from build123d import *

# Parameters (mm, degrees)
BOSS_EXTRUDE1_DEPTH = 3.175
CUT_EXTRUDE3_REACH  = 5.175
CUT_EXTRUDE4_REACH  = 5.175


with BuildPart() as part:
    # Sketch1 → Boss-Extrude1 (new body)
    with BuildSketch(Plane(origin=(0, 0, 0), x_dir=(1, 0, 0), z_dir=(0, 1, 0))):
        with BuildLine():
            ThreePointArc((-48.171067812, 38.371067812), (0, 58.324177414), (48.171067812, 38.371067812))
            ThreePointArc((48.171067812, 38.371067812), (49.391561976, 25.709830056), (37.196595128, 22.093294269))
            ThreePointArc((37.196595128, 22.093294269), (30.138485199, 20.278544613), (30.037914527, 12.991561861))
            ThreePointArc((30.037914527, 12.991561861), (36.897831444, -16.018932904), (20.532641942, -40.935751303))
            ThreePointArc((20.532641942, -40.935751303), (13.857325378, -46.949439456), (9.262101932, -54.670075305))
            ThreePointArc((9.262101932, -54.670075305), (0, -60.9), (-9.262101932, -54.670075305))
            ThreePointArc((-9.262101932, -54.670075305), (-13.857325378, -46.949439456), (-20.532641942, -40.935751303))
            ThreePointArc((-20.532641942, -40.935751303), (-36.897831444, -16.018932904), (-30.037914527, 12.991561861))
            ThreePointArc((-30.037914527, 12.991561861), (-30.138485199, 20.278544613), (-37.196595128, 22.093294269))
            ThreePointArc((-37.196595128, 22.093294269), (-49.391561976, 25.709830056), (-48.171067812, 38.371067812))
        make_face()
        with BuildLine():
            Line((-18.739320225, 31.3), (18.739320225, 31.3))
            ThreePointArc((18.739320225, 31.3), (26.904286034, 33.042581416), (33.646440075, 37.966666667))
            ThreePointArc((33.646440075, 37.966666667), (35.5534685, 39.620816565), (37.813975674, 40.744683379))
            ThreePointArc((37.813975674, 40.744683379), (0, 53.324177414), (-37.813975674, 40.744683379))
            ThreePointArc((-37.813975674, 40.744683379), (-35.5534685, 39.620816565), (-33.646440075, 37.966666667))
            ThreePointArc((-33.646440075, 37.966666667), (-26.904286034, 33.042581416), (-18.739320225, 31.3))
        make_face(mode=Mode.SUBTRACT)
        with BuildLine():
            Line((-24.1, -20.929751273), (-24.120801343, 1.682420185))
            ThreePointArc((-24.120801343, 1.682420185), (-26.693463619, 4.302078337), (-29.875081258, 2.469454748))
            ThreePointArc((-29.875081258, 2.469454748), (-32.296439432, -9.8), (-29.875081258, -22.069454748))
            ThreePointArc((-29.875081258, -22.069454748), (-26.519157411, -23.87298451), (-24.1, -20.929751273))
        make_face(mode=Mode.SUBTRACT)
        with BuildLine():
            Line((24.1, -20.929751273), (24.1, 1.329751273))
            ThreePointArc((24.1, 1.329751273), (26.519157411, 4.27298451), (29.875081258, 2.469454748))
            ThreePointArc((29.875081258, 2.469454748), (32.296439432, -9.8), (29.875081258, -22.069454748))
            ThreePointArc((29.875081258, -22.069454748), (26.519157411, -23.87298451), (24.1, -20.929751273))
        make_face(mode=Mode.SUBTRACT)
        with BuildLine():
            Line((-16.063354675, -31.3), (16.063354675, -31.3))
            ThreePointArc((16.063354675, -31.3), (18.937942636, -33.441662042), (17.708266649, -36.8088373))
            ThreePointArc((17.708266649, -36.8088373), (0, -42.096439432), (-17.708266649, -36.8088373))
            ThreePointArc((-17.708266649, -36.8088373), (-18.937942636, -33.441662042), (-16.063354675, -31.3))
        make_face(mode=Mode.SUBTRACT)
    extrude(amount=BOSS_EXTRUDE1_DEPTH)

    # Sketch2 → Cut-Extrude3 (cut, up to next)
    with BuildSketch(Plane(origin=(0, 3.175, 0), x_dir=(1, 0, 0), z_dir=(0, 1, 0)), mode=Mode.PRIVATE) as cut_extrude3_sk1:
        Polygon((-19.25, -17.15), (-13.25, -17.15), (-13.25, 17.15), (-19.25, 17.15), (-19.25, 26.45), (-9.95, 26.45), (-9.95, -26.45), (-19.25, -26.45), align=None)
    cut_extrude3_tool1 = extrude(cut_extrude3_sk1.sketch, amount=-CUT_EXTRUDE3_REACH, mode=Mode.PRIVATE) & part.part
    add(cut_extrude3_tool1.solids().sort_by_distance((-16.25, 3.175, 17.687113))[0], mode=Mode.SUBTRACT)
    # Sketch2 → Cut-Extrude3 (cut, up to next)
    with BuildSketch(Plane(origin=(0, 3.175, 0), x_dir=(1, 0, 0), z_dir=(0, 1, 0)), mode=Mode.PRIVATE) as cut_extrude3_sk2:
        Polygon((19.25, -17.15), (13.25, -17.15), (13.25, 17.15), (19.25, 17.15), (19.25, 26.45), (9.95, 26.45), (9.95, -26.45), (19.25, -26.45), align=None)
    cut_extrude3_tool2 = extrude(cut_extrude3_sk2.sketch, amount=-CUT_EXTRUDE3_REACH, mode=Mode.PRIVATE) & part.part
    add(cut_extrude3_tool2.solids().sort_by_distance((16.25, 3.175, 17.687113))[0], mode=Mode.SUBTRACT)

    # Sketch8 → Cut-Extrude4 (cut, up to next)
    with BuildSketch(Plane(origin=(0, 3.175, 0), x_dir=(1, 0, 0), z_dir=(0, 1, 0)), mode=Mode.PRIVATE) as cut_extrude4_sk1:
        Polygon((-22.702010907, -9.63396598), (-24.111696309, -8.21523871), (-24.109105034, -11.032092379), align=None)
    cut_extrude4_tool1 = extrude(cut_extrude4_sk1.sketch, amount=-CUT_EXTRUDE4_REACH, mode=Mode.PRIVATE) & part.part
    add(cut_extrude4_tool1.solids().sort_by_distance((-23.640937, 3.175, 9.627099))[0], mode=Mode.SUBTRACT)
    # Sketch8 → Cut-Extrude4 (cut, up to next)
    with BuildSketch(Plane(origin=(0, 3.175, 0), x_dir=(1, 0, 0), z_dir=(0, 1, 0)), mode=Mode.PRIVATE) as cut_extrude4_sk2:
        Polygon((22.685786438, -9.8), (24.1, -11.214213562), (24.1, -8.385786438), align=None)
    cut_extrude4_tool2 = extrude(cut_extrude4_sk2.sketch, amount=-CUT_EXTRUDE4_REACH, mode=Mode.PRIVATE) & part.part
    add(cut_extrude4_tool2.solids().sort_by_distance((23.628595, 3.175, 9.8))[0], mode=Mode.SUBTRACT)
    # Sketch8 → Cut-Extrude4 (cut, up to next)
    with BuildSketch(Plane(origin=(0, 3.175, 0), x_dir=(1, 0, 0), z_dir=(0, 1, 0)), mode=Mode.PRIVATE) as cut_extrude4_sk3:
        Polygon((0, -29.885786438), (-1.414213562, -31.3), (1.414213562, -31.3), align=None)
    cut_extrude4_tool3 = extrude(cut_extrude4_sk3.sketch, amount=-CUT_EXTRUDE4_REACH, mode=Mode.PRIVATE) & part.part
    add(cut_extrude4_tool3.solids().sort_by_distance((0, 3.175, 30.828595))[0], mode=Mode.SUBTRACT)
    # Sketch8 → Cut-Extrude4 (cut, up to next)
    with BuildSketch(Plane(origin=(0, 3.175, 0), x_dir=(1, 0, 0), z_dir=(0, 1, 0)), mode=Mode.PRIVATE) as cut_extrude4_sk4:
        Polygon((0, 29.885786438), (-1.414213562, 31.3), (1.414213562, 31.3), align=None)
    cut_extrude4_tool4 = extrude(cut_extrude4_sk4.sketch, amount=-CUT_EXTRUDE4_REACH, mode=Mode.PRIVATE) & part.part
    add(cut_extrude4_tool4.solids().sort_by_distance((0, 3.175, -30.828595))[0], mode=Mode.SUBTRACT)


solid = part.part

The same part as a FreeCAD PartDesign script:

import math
import FreeCAD as App
import Part
import Sketcher
from FreeCAD import Vector

doc = App.newDocument("Part")
params = doc.addObject("Spreadsheet::Sheet", "Params")
for row, (alias, value) in enumerate([
    ("sketch1_radius", "10 mm"),
    ("sketch1_radius2", "6 mm"),
    ("sketch1_radius3", "30 mm"),
    ("sketch1_radius4", "3 mm"),
    ("sketch1_radius5", "20 mm"),
    ("pad1_length", "3.175 mm"),
    ("sketch2_width", "6 mm"),
    ("sketch2_width2", "9.3 mm"),
    ("sketch2_height", "52.9 mm"),
    ("sketch3_width", "6 mm"),
    ("sketch3_width2", "9.3 mm"),
    ("sketch3_height", "34.3 mm"),
    ("sketch4_length", "2 mm"),
    ("sketch5_length", "2 mm"),
    ("sketch6_length", "2 mm"),
    ("sketch7_length", "2 mm"),
], start=1):
    params.set(f"A{row}", alias)
    params.set(f"B{row}", "=" + value)
    params.setAlias(f"B{row}", alias)

body = doc.addObject("PartDesign::Body", "Body")

sketch1 = body.newObject("Sketcher::SketchObject", "Sketch")
sketch1.AttachmentSupport = (doc.getObject("XZ_Plane"), [""])
sketch1.MapMode = "FlatFace"
sketch1.addGeometry([
    Part.ArcOfCircle(Part.Circle(Vector(0, 9.8, 0), Vector(0, 0, 1), 68.1), math.radians(-135), math.radians(-45)),
    Part.ArcOfCircle(Part.Circle(Vector(-41.1, -31.3, 0), Vector(0, 0, 1), 10), math.radians(67), math.radians(225)),
    Part.ArcOfCircle(Part.Circle(Vector(-34.9, -16.6, 0), Vector(0, 0, 1), 6), math.radians(-113), math.radians(37)),
    Part.ArcOfCircle(Part.Circle(Vector(0.2, 9.5, 0), Vector(0, 0, 1), 37.7), math.radians(123), math.radians(217)),
    Part.ArcOfCircle(Part.Circle(Vector(-37, 66, 0), Vector(0, 0, 1), 30), math.radians(-57), math.radians(-22)),
    Part.ArcOfCircle(Part.Circle(Vector(0, 50.9, 0), Vector(0, 0, 1), 10), math.radians(22), math.radians(158)),
    Part.ArcOfCircle(Part.Circle(Vector(37, 66, 0), Vector(0, 0, 1), 30), math.radians(-158), math.radians(-123)),
    Part.ArcOfCircle(Part.Circle(Vector(-0.2, 9.5, 0), Vector(0, 0, 1), 37.7), math.radians(-37), math.radians(57)),
    Part.ArcOfCircle(Part.Circle(Vector(34.9, -16.6, 0), Vector(0, 0, 1), 6), math.radians(143), math.radians(293)),
    Part.ArcOfCircle(Part.Circle(Vector(41.1, -31.3, 0), Vector(0, 0, 1), 10), math.radians(-45), math.radians(113)),
    Part.LineSegment(Vector(-16.1, 31.3, 0), Vector(16.1, 31.3, 0)),
    Part.ArcOfCircle(Part.Circle(Vector(16.1, 34.3, 0), Vector(0, 0, 1), 3), math.radians(-90), math.radians(57)),
    Part.ArcOfCircle(Part.Circle(Vector(0, 9.8, 0), Vector(0, 0, 1), 32.3), math.radians(57), math.radians(123)),
    Part.ArcOfCircle(Part.Circle(Vector(-16.1, 34.3, 0), Vector(0, 0, 1), 3), math.radians(123), math.radians(270)),
    Part.LineSegment(Vector(24.1, 20.9, 0), Vector(24.1, -1.3, 0)),
    Part.ArcOfCircle(Part.Circle(Vector(27.1, -1.3, 0), Vector(0, 0, 1), 3), math.radians(180), math.radians(338)),
    Part.ArcOfCircle(Part.Circle(Vector(0, 9.8, 0), Vector(0, 0, 1), 32.3), math.radians(-22), math.radians(22)),
    Part.ArcOfCircle(Part.Circle(Vector(27.1, 20.9, 0), Vector(0, 0, 1), 3), math.radians(22), math.radians(180)),
    Part.ArcOfCircle(Part.Circle(Vector(-27.1, 20.9, 0), Vector(0, 0, 1), 3), math.radians(0), math.radians(158)),
    Part.ArcOfCircle(Part.Circle(Vector(0, 9.8, 0), Vector(0, 0, 1), 32.3), math.radians(158), math.radians(202)),
    Part.ArcOfCircle(Part.Circle(Vector(-27.1, -1.3, 0), Vector(0, 0, 1), 3), math.radians(-158), math.radians(-7)),
    Part.LineSegment(Vector(-24.1, -1.7, 0), Vector(-24.1, 20.9, 0)),
    Part.ArcOfCircle(Part.Circle(Vector(-18.7, -51.3, 0), Vector(0, 0, 1), 20), math.radians(90), math.radians(138)),
    Part.ArcOfCircle(Part.Circle(Vector(-41.1, -31.3, 0), Vector(0, 0, 1), 10), math.radians(-71), math.radians(-42)),
    Part.ArcOfCircle(Part.Circle(Vector(0, 9.8, 0), Vector(0, 0, 1), 63.1), math.radians(-127), math.radians(-53)),
    Part.ArcOfCircle(Part.Circle(Vector(41.1, -31.3, 0), Vector(0, 0, 1), 10), math.radians(-138), math.radians(-109)),
    Part.ArcOfCircle(Part.Circle(Vector(18.7, -51.3, 0), Vector(0, 0, 1), 20), math.radians(42), math.radians(90)),
    Part.LineSegment(Vector(18.7, -31.3, 0), Vector(-18.7, -31.3, 0)),
], False)
sketch1.addConstraint([
    Sketcher.Constraint("Tangent", 0, 1, 1, 2),
    Sketcher.Constraint("Tangent", 1, 1, 2, 1),
    Sketcher.Constraint("Tangent", 2, 2, 3, 2),
    Sketcher.Constraint("Tangent", 3, 1, 4, 1),
    Sketcher.Constraint("Tangent", 4, 2, 5, 2),
    Sketcher.Constraint("Tangent", 5, 1, 6, 1),
    Sketcher.Constraint("Tangent", 6, 2, 7, 2),
    Sketcher.Constraint("Tangent", 7, 1, 8, 1),
    Sketcher.Constraint("Tangent", 8, 2, 9, 2),
    Sketcher.Constraint("Tangent", 9, 1, 0, 2),
    Sketcher.Constraint("Tangent", 10, 2, 11, 1),
    Sketcher.Constraint("Tangent", 11, 2, 12, 1),
    Sketcher.Constraint("Tangent", 12, 2, 13, 1),
    Sketcher.Constraint("Tangent", 13, 2, 10, 1),
    Sketcher.Constraint("Tangent", 14, 2, 15, 1),
    Sketcher.Constraint("Tangent", 15, 2, 16, 1),
    Sketcher.Constraint("Tangent", 16, 2, 17, 1),
    Sketcher.Constraint("Tangent", 17, 2, 14, 1),
    Sketcher.Constraint("Tangent", 18, 2, 19, 1),
    Sketcher.Constraint("Tangent", 19, 2, 20, 1),
    Sketcher.Constraint("Coincident", 20, 2, 21, 1),
    Sketcher.Constraint("Coincident", 21, 2, 18, 1),
    Sketcher.Constraint("Tangent", 22, 2, 23, 2),
    Sketcher.Constraint("Coincident", 23, 1, 24, 1),
    Sketcher.Constraint("Coincident", 24, 2, 25, 2),
    Sketcher.Constraint("Tangent", 25, 1, 26, 1),
    Sketcher.Constraint("Tangent", 26, 2, 27, 1),
    Sketcher.Constraint("Tangent", 27, 2, 22, 1),
    Sketcher.Constraint("Horizontal", 10),
    Sketcher.Constraint("Vertical", 14),
    Sketcher.Constraint("Horizontal", 27),
    Sketcher.Constraint("Coincident", 12, 3, 0, 3),
    Sketcher.Constraint("Coincident", 16, 3, 0, 3),
    Sketcher.Constraint("Coincident", 19, 3, 0, 3),
    Sketcher.Constraint("Coincident", 23, 3, 1, 3),
    Sketcher.Constraint("Coincident", 24, 3, 0, 3),
    Sketcher.Constraint("Coincident", 25, 3, 9, 3),
    Sketcher.Constraint("Equal", 1, 5),
    Sketcher.Constraint("Equal", 4, 6),
    Sketcher.Constraint("Equal", 3, 7),
    Sketcher.Constraint("Equal", 2, 8),
    Sketcher.Constraint("Equal", 5, 9),
    Sketcher.Constraint("Equal", 11, 13),
    Sketcher.Constraint("Equal", 13, 15),
    Sketcher.Constraint("Equal", 12, 16),
    Sketcher.Constraint("Equal", 15, 17),
    Sketcher.Constraint("Equal", 17, 18),
    Sketcher.Constraint("Equal", 16, 19),
    Sketcher.Constraint("Equal", 18, 20),
    Sketcher.Constraint("Equal", 9, 23),
    Sketcher.Constraint("Equal", 23, 25),
    Sketcher.Constraint("Equal", 22, 26),
    Sketcher.Constraint("Symmetric", 4, 3, 6, 3, -2),
    Sketcher.Constraint("Symmetric", 2, 3, 8, 3, -2),
    Sketcher.Constraint("Symmetric", 17, 3, 18, 3, -2),
    Sketcher.Constraint("Horizontal", 15, 3, 20, 3),
    Sketcher.Constraint("Horizontal", 17, 2, 21, 2),
    Sketcher.Constraint("Horizontal", 25, 3, 26, 2),
    Sketcher.Constraint("Radius", 1, 10.0),
    Sketcher.Constraint("Radius", 2, 6.0),
    Sketcher.Constraint("Radius", 4, 30.0),
    Sketcher.Constraint("Radius", 11, 3.0),
    Sketcher.Constraint("Radius", 22, 20.0),
    Sketcher.Constraint("DistanceX", 23, 3, 20, 3, 14.0),
    Sketcher.Constraint("DistanceY", -1, 1, 0, 3, 9.8),
    Sketcher.Constraint("DistanceX", 1, 3, -1, 1, 41.1),
    Sketcher.Constraint("DistanceY", 1, 3, -1, 1, 31.3),
    Sketcher.Constraint("DistanceY", -1, 1, 5, 3, 50.9),
    Sketcher.Constraint("DistanceY", -1, 1, 11, 3, 34.3),
    Sketcher.Constraint("Radius", 3, 37.682338),
    Sketcher.Constraint("Radius", 12, 32.296439),
    Sketcher.Constraint("Radius", 24, 63.124177),
    Sketcher.Constraint("DistanceX", 2, 3, 3, 3, 35.066999),
    Sketcher.Constraint("DistanceY", 18, 3, 3, 1, 20.006),
    Sketcher.Constraint("DistanceX", 20, 2, -1, 1, 24.120801),
])
sketch1.setExpression("Constraints[58]", "Params.sketch1_radius")
sketch1.setExpression("Constraints[59]", "Params.sketch1_radius2")
sketch1.setExpression("Constraints[60]", "Params.sketch1_radius3")
sketch1.setExpression("Constraints[61]", "Params.sketch1_radius4")
sketch1.setExpression("Constraints[62]", "Params.sketch1_radius5")
pad1 = body.newObject("PartDesign::Pad", "Pad")
pad1.Profile = sketch1
pad1.setExpression("Length", "Params.pad1_length")
pad1.Reversed = True

sketch2 = body.newObject("Sketcher::SketchObject", "Sketch001")
sketch2.AttachmentSupport = (doc.getObject("XZ_Plane"), [""])
sketch2.MapMode = "FlatFace"
sketch2.AttachmentOffset = App.Placement(Vector(0, 0, -3.175), App.Rotation())
sketch2.addGeometry([
    Part.LineSegment(Vector(-13, 17, 0), Vector(-19, 17, 0)),
    Part.LineSegment(Vector(-19, 17, 0), Vector(-19, 26, 0)),
    Part.LineSegment(Vector(-19, 26, 0), Vector(-10, 26, 0)),
    Part.LineSegment(Vector(-10, 26, 0), Vector(-10, -26, 0)),
    Part.LineSegment(Vector(-10, -26, 0), Vector(-19, -26, 0)),
    Part.LineSegment(Vector(-19, -26, 0), Vector(-19, -17, 0)),
    Part.LineSegment(Vector(-19, -17, 0), Vector(-13, -17, 0)),
    Part.LineSegment(Vector(-13, -17, 0), Vector(-13, 17, 0)),
], False)
sketch2.addConstraint([
    Sketcher.Constraint("Coincident", 0, 2, 1, 1),
    Sketcher.Constraint("Coincident", 1, 2, 2, 1),
    Sketcher.Constraint("Coincident", 2, 2, 3, 1),
    Sketcher.Constraint("Coincident", 3, 2, 4, 1),
    Sketcher.Constraint("Coincident", 4, 2, 5, 1),
    Sketcher.Constraint("Coincident", 5, 2, 6, 1),
    Sketcher.Constraint("Coincident", 6, 2, 7, 1),
    Sketcher.Constraint("Coincident", 7, 2, 0, 1),
    Sketcher.Constraint("Horizontal", 0),
    Sketcher.Constraint("Vertical", 1),
    Sketcher.Constraint("Horizontal", 2),
    Sketcher.Constraint("Vertical", 3),
    Sketcher.Constraint("Horizontal", 4),
    Sketcher.Constraint("Vertical", 5),
    Sketcher.Constraint("Horizontal", 6),
    Sketcher.Constraint("Vertical", 7),
    Sketcher.Constraint("Symmetric", 1, 2, 4, 2, -1),
    Sketcher.Constraint("Equal", 4, 1),
    Sketcher.Constraint("Equal", 1, 5),
    Sketcher.Constraint("DistanceX", 0, 2, 0, 1, 6.0),
    Sketcher.Constraint("DistanceX", 2, 1, 2, 2, 9.3),
    Sketcher.Constraint("DistanceY", 3, 2, 3, 1, 52.9),
    Sketcher.Constraint("DistanceX", 0, 2, -1, 1, 19.25),
])
sketch2.setExpression("Constraints[19]", "Params.sketch2_width")
sketch2.setExpression("Constraints[20]", "Params.sketch2_width2")
sketch2.setExpression("Constraints[21]", "Params.sketch2_height")
pocket1 = body.newObject("PartDesign::Pocket", "Pocket")
pocket1.Profile = sketch2
pocket1.Type = "UpToFirst"
pocket1.Reversed = True

sketch3 = body.newObject("Sketcher::SketchObject", "Sketch002")
sketch3.AttachmentSupport = (doc.getObject("XZ_Plane"), [""])
sketch3.MapMode = "FlatFace"
sketch3.AttachmentOffset = App.Placement(Vector(0, 0, -3.175), App.Rotation())
sketch3.addGeometry([
    Part.LineSegment(Vector(19, 17, 0), Vector(13, 17, 0)),
    Part.LineSegment(Vector(13, 17, 0), Vector(13, -17, 0)),
    Part.LineSegment(Vector(13, -17, 0), Vector(19, -17, 0)),
    Part.LineSegment(Vector(19, -17, 0), Vector(19, -26, 0)),
    Part.LineSegment(Vector(19, -26, 0), Vector(10, -26, 0)),
    Part.LineSegment(Vector(10, -26, 0), Vector(10, 26, 0)),
    Part.LineSegment(Vector(10, 26, 0), Vector(19, 26, 0)),
    Part.LineSegment(Vector(19, 26, 0), Vector(19, 17, 0)),
], False)
sketch3.addConstraint([
    Sketcher.Constraint("Coincident", 0, 2, 1, 1),
    Sketcher.Constraint("Coincident", 1, 2, 2, 1),
    Sketcher.Constraint("Coincident", 2, 2, 3, 1),
    Sketcher.Constraint("Coincident", 3, 2, 4, 1),
    Sketcher.Constraint("Coincident", 4, 2, 5, 1),
    Sketcher.Constraint("Coincident", 5, 2, 6, 1),
    Sketcher.Constraint("Coincident", 6, 2, 7, 1),
    Sketcher.Constraint("Coincident", 7, 2, 0, 1),
    Sketcher.Constraint("Horizontal", 0),
    Sketcher.Constraint("Vertical", 1),
    Sketcher.Constraint("Horizontal", 2),
    Sketcher.Constraint("Vertical", 3),
    Sketcher.Constraint("Horizontal", 4),
    Sketcher.Constraint("Vertical", 5),
    Sketcher.Constraint("Horizontal", 6),
    Sketcher.Constraint("Vertical", 7),
    Sketcher.Constraint("Symmetric", 3, 2, 6, 2, -1),
    Sketcher.Constraint("Equal", 6, 3),
    Sketcher.Constraint("Equal", 3, 7),
    Sketcher.Constraint("DistanceX", 0, 2, 0, 1, 6.0),
    Sketcher.Constraint("DistanceX", 4, 2, 4, 1, 9.3),
    Sketcher.Constraint("DistanceY", 1, 2, 1, 1, 34.3),
    Sketcher.Constraint("DistanceX", -1, 1, 0, 2, 13.25),
])
sketch3.setExpression("Constraints[19]", "Params.sketch3_width")
sketch3.setExpression("Constraints[20]", "Params.sketch3_width2")
sketch3.setExpression("Constraints[21]", "Params.sketch3_height")
pocket2 = body.newObject("PartDesign::Pocket", "Pocket001")
pocket2.Profile = sketch3
pocket2.Type = "UpToFirst"
pocket2.Reversed = True

sketch4 = body.newObject("Sketcher::SketchObject", "Sketch003")
sketch4.AttachmentSupport = (doc.getObject("XZ_Plane"), [""])
sketch4.MapMode = "FlatFace"
sketch4.AttachmentOffset = App.Placement(Vector(0, 0, -3.175), App.Rotation())
sketch4.addGeometry([
    Part.LineSegment(Vector(-22.7, 9.6, 0), Vector(-24.1, 8.2, 0)),
    Part.LineSegment(Vector(-24.1, 8.2, 0), Vector(-24.1, 11, 0)),
    Part.LineSegment(Vector(-24.1, 11, 0), Vector(-22.7, 9.6, 0)),
], False)
sketch4.addConstraint([
    Sketcher.Constraint("Coincident", 0, 2, 1, 1),
    Sketcher.Constraint("Coincident", 1, 2, 2, 1),
    Sketcher.Constraint("Coincident", 2, 2, 0, 1),
    Sketcher.Constraint("Perpendicular", 0, 2),
    Sketcher.Constraint("Distance", 0, 2.0),
    Sketcher.Constraint("Distance", 2, 1.983601),
    Sketcher.Constraint("DistanceY", -1, 1, 0, 2, 8.215239),
    Sketcher.Constraint("DistanceX", 2, 2, -1, 1, 22.702011),
    Sketcher.Constraint("DistanceX", 0, 2, 1, 2, 0.002591),
])
sketch4.setExpression("Constraints[4]", "Params.sketch4_length")
pocket3 = body.newObject("PartDesign::Pocket", "Pocket002")
pocket3.Profile = sketch4
pocket3.Type = "UpToFirst"
pocket3.Reversed = True

sketch5 = body.newObject("Sketcher::SketchObject", "Sketch004")
sketch5.AttachmentSupport = (doc.getObject("XZ_Plane"), [""])
sketch5.MapMode = "FlatFace"
sketch5.AttachmentOffset = App.Placement(Vector(0, 0, -3.175), App.Rotation())
sketch5.addGeometry([
    Part.LineSegment(Vector(22.7, 9.8, 0), Vector(24.1, 11.2, 0)),
    Part.LineSegment(Vector(24.1, 11.2, 0), Vector(24.1, 8.4, 0)),
    Part.LineSegment(Vector(24.1, 8.4, 0), Vector(22.7, 9.8, 0)),
], False)
sketch5.addConstraint([
    Sketcher.Constraint("Coincident", 0, 2, 1, 1),
    Sketcher.Constraint("Coincident", 1, 2, 2, 1),
    Sketcher.Constraint("Coincident", 2, 2, 0, 1),
    Sketcher.Constraint("Vertical", 1),
    Sketcher.Constraint("Perpendicular", 0, 2),
    Sketcher.Constraint("Equal", 0, 2),
    Sketcher.Constraint("Distance", 0, 2.0),
    Sketcher.Constraint("DistanceX", -1, 1, 0, 2, 24.1),
    Sketcher.Constraint("DistanceY", -1, 1, 2, 2, 9.8),
])
sketch5.setExpression("Constraints[6]", "Params.sketch5_length")
pocket4 = body.newObject("PartDesign::Pocket", "Pocket003")
pocket4.Profile = sketch5
pocket4.Type = "UpToFirst"
pocket4.Reversed = True

sketch6 = body.newObject("Sketcher::SketchObject", "Sketch005")
sketch6.AttachmentSupport = (doc.getObject("XZ_Plane"), [""])
sketch6.MapMode = "FlatFace"
sketch6.AttachmentOffset = App.Placement(Vector(0, 0, -3.175), App.Rotation())
sketch6.addGeometry([
    Part.LineSegment(Vector(0, 29.9, 0), Vector(-1.4, 31.3, 0)),
    Part.LineSegment(Vector(-1.4, 31.3, 0), Vector(1.4, 31.3, 0)),
    Part.LineSegment(Vector(1.4, 31.3, 0), Vector(0, 29.9, 0)),
], False)
sketch6.addConstraint([
    Sketcher.Constraint("Coincident", 0, 2, 1, 1),
    Sketcher.Constraint("Coincident", 1, 2, 2, 1),
    Sketcher.Constraint("Coincident", 2, 2, 0, 1),
    Sketcher.Constraint("Horizontal", 1),
    Sketcher.Constraint("PointOnObject", 2, 2, -2),
    Sketcher.Constraint("Perpendicular", 0, 2),
    Sketcher.Constraint("Equal", 0, 2),
    Sketcher.Constraint("Distance", 0, 2.0),
    Sketcher.Constraint("DistanceY", -1, 1, 0, 2, 31.3),
])
sketch6.setExpression("Constraints[7]", "Params.sketch6_length")
pocket5 = body.newObject("PartDesign::Pocket", "Pocket004")
pocket5.Profile = sketch6
pocket5.Type = "UpToFirst"
pocket5.Reversed = True

sketch7 = body.newObject("Sketcher::SketchObject", "Sketch006")
sketch7.AttachmentSupport = (doc.getObject("XZ_Plane"), [""])
sketch7.MapMode = "FlatFace"
sketch7.AttachmentOffset = App.Placement(Vector(0, 0, -3.175), App.Rotation())
sketch7.addGeometry([
    Part.LineSegment(Vector(-1.4, -31.3, 0), Vector(0, -29.9, 0)),
    Part.LineSegment(Vector(0, -29.9, 0), Vector(1.4, -31.3, 0)),
    Part.LineSegment(Vector(1.4, -31.3, 0), Vector(-1.4, -31.3, 0)),
], False)
sketch7.addConstraint([
    Sketcher.Constraint("Coincident", 0, 2, 1, 1),
    Sketcher.Constraint("Coincident", 1, 2, 2, 1),
    Sketcher.Constraint("Coincident", 2, 2, 0, 1),
    Sketcher.Constraint("Horizontal", 2),
    Sketcher.Constraint("PointOnObject", 0, 2, -2),
    Sketcher.Constraint("Perpendicular", 0, 1),
    Sketcher.Constraint("Equal", 0, 1),
    Sketcher.Constraint("Distance", 0, 2.0),
    Sketcher.Constraint("DistanceY", 1, 2, -1, 1, 31.3),
])
sketch7.setExpression("Constraints[7]", "Params.sketch7_length")
pocket6 = body.newObject("PartDesign::Pocket", "Pocket005")
pocket6.Profile = sketch7
pocket6.Type = "UpToFirst"
pocket6.Reversed = True

doc.recompute()
